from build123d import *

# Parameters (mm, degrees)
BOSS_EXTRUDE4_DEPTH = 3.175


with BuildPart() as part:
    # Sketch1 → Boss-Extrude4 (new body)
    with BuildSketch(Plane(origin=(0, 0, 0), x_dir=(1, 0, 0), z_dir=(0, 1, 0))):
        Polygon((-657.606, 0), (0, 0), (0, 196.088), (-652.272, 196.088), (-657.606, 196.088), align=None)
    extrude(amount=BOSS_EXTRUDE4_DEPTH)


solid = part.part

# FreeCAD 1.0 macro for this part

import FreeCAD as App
import Part
import Sketcher
Q = App.Units.Quantity


def add_polygon(sketch, points):
    """Adds a closed chain of lines whose ends are joined by coincident constraints."""
    first, n = sketch.GeometryCount, len(points)
    for a, b in zip(points, points[1:] + points[:1]):
        sketch.addGeometry(Part.LineSegment(App.Vector(*a, 0), App.Vector(*b, 0)), False)
    for i in range(n):
        sketch.addConstraint(Sketcher.Constraint("Coincident", first + i, 2, first + (i + 1) % n, 1))

doc = App.newDocument("Part")
body = doc.addObject("PartDesign::Body", "Body")

sketch1 = body.newObject("Sketcher::SketchObject", "Sketch")
sketch1.AttachmentSupport = (doc.getObject("XZ_Plane"), [""])
sketch1.MapMode = "FlatFace"
add_polygon(sketch1, [(-658, 0), (0, 0), (0, -196), (-658, -196)])
sketch1.addConstraint(Sketcher.Constraint("Horizontal", 0))
sketch1.addConstraint(Sketcher.Constraint("Vertical", 1))
sketch1.addConstraint(Sketcher.Constraint("Horizontal", 2))
sketch1.addConstraint(Sketcher.Constraint("Vertical", 3))
sketch1.addConstraint(Sketcher.Constraint("Coincident", 0, 2, -1, 1))
sketch1.addConstraint(Sketcher.Constraint("DistanceX", 0, 1, 0, 2, Q("25.89 in")))
sketch1.addConstraint(Sketcher.Constraint("DistanceY", 1, 2, 1, 1, Q("7.72 in")))
pad1 = body.newObject("PartDesign::Pad", "Pad")
pad1.Profile = sketch1
pad1.Length = Q("0.125 in")
pad1.Reversed = True

doc.recompute()
